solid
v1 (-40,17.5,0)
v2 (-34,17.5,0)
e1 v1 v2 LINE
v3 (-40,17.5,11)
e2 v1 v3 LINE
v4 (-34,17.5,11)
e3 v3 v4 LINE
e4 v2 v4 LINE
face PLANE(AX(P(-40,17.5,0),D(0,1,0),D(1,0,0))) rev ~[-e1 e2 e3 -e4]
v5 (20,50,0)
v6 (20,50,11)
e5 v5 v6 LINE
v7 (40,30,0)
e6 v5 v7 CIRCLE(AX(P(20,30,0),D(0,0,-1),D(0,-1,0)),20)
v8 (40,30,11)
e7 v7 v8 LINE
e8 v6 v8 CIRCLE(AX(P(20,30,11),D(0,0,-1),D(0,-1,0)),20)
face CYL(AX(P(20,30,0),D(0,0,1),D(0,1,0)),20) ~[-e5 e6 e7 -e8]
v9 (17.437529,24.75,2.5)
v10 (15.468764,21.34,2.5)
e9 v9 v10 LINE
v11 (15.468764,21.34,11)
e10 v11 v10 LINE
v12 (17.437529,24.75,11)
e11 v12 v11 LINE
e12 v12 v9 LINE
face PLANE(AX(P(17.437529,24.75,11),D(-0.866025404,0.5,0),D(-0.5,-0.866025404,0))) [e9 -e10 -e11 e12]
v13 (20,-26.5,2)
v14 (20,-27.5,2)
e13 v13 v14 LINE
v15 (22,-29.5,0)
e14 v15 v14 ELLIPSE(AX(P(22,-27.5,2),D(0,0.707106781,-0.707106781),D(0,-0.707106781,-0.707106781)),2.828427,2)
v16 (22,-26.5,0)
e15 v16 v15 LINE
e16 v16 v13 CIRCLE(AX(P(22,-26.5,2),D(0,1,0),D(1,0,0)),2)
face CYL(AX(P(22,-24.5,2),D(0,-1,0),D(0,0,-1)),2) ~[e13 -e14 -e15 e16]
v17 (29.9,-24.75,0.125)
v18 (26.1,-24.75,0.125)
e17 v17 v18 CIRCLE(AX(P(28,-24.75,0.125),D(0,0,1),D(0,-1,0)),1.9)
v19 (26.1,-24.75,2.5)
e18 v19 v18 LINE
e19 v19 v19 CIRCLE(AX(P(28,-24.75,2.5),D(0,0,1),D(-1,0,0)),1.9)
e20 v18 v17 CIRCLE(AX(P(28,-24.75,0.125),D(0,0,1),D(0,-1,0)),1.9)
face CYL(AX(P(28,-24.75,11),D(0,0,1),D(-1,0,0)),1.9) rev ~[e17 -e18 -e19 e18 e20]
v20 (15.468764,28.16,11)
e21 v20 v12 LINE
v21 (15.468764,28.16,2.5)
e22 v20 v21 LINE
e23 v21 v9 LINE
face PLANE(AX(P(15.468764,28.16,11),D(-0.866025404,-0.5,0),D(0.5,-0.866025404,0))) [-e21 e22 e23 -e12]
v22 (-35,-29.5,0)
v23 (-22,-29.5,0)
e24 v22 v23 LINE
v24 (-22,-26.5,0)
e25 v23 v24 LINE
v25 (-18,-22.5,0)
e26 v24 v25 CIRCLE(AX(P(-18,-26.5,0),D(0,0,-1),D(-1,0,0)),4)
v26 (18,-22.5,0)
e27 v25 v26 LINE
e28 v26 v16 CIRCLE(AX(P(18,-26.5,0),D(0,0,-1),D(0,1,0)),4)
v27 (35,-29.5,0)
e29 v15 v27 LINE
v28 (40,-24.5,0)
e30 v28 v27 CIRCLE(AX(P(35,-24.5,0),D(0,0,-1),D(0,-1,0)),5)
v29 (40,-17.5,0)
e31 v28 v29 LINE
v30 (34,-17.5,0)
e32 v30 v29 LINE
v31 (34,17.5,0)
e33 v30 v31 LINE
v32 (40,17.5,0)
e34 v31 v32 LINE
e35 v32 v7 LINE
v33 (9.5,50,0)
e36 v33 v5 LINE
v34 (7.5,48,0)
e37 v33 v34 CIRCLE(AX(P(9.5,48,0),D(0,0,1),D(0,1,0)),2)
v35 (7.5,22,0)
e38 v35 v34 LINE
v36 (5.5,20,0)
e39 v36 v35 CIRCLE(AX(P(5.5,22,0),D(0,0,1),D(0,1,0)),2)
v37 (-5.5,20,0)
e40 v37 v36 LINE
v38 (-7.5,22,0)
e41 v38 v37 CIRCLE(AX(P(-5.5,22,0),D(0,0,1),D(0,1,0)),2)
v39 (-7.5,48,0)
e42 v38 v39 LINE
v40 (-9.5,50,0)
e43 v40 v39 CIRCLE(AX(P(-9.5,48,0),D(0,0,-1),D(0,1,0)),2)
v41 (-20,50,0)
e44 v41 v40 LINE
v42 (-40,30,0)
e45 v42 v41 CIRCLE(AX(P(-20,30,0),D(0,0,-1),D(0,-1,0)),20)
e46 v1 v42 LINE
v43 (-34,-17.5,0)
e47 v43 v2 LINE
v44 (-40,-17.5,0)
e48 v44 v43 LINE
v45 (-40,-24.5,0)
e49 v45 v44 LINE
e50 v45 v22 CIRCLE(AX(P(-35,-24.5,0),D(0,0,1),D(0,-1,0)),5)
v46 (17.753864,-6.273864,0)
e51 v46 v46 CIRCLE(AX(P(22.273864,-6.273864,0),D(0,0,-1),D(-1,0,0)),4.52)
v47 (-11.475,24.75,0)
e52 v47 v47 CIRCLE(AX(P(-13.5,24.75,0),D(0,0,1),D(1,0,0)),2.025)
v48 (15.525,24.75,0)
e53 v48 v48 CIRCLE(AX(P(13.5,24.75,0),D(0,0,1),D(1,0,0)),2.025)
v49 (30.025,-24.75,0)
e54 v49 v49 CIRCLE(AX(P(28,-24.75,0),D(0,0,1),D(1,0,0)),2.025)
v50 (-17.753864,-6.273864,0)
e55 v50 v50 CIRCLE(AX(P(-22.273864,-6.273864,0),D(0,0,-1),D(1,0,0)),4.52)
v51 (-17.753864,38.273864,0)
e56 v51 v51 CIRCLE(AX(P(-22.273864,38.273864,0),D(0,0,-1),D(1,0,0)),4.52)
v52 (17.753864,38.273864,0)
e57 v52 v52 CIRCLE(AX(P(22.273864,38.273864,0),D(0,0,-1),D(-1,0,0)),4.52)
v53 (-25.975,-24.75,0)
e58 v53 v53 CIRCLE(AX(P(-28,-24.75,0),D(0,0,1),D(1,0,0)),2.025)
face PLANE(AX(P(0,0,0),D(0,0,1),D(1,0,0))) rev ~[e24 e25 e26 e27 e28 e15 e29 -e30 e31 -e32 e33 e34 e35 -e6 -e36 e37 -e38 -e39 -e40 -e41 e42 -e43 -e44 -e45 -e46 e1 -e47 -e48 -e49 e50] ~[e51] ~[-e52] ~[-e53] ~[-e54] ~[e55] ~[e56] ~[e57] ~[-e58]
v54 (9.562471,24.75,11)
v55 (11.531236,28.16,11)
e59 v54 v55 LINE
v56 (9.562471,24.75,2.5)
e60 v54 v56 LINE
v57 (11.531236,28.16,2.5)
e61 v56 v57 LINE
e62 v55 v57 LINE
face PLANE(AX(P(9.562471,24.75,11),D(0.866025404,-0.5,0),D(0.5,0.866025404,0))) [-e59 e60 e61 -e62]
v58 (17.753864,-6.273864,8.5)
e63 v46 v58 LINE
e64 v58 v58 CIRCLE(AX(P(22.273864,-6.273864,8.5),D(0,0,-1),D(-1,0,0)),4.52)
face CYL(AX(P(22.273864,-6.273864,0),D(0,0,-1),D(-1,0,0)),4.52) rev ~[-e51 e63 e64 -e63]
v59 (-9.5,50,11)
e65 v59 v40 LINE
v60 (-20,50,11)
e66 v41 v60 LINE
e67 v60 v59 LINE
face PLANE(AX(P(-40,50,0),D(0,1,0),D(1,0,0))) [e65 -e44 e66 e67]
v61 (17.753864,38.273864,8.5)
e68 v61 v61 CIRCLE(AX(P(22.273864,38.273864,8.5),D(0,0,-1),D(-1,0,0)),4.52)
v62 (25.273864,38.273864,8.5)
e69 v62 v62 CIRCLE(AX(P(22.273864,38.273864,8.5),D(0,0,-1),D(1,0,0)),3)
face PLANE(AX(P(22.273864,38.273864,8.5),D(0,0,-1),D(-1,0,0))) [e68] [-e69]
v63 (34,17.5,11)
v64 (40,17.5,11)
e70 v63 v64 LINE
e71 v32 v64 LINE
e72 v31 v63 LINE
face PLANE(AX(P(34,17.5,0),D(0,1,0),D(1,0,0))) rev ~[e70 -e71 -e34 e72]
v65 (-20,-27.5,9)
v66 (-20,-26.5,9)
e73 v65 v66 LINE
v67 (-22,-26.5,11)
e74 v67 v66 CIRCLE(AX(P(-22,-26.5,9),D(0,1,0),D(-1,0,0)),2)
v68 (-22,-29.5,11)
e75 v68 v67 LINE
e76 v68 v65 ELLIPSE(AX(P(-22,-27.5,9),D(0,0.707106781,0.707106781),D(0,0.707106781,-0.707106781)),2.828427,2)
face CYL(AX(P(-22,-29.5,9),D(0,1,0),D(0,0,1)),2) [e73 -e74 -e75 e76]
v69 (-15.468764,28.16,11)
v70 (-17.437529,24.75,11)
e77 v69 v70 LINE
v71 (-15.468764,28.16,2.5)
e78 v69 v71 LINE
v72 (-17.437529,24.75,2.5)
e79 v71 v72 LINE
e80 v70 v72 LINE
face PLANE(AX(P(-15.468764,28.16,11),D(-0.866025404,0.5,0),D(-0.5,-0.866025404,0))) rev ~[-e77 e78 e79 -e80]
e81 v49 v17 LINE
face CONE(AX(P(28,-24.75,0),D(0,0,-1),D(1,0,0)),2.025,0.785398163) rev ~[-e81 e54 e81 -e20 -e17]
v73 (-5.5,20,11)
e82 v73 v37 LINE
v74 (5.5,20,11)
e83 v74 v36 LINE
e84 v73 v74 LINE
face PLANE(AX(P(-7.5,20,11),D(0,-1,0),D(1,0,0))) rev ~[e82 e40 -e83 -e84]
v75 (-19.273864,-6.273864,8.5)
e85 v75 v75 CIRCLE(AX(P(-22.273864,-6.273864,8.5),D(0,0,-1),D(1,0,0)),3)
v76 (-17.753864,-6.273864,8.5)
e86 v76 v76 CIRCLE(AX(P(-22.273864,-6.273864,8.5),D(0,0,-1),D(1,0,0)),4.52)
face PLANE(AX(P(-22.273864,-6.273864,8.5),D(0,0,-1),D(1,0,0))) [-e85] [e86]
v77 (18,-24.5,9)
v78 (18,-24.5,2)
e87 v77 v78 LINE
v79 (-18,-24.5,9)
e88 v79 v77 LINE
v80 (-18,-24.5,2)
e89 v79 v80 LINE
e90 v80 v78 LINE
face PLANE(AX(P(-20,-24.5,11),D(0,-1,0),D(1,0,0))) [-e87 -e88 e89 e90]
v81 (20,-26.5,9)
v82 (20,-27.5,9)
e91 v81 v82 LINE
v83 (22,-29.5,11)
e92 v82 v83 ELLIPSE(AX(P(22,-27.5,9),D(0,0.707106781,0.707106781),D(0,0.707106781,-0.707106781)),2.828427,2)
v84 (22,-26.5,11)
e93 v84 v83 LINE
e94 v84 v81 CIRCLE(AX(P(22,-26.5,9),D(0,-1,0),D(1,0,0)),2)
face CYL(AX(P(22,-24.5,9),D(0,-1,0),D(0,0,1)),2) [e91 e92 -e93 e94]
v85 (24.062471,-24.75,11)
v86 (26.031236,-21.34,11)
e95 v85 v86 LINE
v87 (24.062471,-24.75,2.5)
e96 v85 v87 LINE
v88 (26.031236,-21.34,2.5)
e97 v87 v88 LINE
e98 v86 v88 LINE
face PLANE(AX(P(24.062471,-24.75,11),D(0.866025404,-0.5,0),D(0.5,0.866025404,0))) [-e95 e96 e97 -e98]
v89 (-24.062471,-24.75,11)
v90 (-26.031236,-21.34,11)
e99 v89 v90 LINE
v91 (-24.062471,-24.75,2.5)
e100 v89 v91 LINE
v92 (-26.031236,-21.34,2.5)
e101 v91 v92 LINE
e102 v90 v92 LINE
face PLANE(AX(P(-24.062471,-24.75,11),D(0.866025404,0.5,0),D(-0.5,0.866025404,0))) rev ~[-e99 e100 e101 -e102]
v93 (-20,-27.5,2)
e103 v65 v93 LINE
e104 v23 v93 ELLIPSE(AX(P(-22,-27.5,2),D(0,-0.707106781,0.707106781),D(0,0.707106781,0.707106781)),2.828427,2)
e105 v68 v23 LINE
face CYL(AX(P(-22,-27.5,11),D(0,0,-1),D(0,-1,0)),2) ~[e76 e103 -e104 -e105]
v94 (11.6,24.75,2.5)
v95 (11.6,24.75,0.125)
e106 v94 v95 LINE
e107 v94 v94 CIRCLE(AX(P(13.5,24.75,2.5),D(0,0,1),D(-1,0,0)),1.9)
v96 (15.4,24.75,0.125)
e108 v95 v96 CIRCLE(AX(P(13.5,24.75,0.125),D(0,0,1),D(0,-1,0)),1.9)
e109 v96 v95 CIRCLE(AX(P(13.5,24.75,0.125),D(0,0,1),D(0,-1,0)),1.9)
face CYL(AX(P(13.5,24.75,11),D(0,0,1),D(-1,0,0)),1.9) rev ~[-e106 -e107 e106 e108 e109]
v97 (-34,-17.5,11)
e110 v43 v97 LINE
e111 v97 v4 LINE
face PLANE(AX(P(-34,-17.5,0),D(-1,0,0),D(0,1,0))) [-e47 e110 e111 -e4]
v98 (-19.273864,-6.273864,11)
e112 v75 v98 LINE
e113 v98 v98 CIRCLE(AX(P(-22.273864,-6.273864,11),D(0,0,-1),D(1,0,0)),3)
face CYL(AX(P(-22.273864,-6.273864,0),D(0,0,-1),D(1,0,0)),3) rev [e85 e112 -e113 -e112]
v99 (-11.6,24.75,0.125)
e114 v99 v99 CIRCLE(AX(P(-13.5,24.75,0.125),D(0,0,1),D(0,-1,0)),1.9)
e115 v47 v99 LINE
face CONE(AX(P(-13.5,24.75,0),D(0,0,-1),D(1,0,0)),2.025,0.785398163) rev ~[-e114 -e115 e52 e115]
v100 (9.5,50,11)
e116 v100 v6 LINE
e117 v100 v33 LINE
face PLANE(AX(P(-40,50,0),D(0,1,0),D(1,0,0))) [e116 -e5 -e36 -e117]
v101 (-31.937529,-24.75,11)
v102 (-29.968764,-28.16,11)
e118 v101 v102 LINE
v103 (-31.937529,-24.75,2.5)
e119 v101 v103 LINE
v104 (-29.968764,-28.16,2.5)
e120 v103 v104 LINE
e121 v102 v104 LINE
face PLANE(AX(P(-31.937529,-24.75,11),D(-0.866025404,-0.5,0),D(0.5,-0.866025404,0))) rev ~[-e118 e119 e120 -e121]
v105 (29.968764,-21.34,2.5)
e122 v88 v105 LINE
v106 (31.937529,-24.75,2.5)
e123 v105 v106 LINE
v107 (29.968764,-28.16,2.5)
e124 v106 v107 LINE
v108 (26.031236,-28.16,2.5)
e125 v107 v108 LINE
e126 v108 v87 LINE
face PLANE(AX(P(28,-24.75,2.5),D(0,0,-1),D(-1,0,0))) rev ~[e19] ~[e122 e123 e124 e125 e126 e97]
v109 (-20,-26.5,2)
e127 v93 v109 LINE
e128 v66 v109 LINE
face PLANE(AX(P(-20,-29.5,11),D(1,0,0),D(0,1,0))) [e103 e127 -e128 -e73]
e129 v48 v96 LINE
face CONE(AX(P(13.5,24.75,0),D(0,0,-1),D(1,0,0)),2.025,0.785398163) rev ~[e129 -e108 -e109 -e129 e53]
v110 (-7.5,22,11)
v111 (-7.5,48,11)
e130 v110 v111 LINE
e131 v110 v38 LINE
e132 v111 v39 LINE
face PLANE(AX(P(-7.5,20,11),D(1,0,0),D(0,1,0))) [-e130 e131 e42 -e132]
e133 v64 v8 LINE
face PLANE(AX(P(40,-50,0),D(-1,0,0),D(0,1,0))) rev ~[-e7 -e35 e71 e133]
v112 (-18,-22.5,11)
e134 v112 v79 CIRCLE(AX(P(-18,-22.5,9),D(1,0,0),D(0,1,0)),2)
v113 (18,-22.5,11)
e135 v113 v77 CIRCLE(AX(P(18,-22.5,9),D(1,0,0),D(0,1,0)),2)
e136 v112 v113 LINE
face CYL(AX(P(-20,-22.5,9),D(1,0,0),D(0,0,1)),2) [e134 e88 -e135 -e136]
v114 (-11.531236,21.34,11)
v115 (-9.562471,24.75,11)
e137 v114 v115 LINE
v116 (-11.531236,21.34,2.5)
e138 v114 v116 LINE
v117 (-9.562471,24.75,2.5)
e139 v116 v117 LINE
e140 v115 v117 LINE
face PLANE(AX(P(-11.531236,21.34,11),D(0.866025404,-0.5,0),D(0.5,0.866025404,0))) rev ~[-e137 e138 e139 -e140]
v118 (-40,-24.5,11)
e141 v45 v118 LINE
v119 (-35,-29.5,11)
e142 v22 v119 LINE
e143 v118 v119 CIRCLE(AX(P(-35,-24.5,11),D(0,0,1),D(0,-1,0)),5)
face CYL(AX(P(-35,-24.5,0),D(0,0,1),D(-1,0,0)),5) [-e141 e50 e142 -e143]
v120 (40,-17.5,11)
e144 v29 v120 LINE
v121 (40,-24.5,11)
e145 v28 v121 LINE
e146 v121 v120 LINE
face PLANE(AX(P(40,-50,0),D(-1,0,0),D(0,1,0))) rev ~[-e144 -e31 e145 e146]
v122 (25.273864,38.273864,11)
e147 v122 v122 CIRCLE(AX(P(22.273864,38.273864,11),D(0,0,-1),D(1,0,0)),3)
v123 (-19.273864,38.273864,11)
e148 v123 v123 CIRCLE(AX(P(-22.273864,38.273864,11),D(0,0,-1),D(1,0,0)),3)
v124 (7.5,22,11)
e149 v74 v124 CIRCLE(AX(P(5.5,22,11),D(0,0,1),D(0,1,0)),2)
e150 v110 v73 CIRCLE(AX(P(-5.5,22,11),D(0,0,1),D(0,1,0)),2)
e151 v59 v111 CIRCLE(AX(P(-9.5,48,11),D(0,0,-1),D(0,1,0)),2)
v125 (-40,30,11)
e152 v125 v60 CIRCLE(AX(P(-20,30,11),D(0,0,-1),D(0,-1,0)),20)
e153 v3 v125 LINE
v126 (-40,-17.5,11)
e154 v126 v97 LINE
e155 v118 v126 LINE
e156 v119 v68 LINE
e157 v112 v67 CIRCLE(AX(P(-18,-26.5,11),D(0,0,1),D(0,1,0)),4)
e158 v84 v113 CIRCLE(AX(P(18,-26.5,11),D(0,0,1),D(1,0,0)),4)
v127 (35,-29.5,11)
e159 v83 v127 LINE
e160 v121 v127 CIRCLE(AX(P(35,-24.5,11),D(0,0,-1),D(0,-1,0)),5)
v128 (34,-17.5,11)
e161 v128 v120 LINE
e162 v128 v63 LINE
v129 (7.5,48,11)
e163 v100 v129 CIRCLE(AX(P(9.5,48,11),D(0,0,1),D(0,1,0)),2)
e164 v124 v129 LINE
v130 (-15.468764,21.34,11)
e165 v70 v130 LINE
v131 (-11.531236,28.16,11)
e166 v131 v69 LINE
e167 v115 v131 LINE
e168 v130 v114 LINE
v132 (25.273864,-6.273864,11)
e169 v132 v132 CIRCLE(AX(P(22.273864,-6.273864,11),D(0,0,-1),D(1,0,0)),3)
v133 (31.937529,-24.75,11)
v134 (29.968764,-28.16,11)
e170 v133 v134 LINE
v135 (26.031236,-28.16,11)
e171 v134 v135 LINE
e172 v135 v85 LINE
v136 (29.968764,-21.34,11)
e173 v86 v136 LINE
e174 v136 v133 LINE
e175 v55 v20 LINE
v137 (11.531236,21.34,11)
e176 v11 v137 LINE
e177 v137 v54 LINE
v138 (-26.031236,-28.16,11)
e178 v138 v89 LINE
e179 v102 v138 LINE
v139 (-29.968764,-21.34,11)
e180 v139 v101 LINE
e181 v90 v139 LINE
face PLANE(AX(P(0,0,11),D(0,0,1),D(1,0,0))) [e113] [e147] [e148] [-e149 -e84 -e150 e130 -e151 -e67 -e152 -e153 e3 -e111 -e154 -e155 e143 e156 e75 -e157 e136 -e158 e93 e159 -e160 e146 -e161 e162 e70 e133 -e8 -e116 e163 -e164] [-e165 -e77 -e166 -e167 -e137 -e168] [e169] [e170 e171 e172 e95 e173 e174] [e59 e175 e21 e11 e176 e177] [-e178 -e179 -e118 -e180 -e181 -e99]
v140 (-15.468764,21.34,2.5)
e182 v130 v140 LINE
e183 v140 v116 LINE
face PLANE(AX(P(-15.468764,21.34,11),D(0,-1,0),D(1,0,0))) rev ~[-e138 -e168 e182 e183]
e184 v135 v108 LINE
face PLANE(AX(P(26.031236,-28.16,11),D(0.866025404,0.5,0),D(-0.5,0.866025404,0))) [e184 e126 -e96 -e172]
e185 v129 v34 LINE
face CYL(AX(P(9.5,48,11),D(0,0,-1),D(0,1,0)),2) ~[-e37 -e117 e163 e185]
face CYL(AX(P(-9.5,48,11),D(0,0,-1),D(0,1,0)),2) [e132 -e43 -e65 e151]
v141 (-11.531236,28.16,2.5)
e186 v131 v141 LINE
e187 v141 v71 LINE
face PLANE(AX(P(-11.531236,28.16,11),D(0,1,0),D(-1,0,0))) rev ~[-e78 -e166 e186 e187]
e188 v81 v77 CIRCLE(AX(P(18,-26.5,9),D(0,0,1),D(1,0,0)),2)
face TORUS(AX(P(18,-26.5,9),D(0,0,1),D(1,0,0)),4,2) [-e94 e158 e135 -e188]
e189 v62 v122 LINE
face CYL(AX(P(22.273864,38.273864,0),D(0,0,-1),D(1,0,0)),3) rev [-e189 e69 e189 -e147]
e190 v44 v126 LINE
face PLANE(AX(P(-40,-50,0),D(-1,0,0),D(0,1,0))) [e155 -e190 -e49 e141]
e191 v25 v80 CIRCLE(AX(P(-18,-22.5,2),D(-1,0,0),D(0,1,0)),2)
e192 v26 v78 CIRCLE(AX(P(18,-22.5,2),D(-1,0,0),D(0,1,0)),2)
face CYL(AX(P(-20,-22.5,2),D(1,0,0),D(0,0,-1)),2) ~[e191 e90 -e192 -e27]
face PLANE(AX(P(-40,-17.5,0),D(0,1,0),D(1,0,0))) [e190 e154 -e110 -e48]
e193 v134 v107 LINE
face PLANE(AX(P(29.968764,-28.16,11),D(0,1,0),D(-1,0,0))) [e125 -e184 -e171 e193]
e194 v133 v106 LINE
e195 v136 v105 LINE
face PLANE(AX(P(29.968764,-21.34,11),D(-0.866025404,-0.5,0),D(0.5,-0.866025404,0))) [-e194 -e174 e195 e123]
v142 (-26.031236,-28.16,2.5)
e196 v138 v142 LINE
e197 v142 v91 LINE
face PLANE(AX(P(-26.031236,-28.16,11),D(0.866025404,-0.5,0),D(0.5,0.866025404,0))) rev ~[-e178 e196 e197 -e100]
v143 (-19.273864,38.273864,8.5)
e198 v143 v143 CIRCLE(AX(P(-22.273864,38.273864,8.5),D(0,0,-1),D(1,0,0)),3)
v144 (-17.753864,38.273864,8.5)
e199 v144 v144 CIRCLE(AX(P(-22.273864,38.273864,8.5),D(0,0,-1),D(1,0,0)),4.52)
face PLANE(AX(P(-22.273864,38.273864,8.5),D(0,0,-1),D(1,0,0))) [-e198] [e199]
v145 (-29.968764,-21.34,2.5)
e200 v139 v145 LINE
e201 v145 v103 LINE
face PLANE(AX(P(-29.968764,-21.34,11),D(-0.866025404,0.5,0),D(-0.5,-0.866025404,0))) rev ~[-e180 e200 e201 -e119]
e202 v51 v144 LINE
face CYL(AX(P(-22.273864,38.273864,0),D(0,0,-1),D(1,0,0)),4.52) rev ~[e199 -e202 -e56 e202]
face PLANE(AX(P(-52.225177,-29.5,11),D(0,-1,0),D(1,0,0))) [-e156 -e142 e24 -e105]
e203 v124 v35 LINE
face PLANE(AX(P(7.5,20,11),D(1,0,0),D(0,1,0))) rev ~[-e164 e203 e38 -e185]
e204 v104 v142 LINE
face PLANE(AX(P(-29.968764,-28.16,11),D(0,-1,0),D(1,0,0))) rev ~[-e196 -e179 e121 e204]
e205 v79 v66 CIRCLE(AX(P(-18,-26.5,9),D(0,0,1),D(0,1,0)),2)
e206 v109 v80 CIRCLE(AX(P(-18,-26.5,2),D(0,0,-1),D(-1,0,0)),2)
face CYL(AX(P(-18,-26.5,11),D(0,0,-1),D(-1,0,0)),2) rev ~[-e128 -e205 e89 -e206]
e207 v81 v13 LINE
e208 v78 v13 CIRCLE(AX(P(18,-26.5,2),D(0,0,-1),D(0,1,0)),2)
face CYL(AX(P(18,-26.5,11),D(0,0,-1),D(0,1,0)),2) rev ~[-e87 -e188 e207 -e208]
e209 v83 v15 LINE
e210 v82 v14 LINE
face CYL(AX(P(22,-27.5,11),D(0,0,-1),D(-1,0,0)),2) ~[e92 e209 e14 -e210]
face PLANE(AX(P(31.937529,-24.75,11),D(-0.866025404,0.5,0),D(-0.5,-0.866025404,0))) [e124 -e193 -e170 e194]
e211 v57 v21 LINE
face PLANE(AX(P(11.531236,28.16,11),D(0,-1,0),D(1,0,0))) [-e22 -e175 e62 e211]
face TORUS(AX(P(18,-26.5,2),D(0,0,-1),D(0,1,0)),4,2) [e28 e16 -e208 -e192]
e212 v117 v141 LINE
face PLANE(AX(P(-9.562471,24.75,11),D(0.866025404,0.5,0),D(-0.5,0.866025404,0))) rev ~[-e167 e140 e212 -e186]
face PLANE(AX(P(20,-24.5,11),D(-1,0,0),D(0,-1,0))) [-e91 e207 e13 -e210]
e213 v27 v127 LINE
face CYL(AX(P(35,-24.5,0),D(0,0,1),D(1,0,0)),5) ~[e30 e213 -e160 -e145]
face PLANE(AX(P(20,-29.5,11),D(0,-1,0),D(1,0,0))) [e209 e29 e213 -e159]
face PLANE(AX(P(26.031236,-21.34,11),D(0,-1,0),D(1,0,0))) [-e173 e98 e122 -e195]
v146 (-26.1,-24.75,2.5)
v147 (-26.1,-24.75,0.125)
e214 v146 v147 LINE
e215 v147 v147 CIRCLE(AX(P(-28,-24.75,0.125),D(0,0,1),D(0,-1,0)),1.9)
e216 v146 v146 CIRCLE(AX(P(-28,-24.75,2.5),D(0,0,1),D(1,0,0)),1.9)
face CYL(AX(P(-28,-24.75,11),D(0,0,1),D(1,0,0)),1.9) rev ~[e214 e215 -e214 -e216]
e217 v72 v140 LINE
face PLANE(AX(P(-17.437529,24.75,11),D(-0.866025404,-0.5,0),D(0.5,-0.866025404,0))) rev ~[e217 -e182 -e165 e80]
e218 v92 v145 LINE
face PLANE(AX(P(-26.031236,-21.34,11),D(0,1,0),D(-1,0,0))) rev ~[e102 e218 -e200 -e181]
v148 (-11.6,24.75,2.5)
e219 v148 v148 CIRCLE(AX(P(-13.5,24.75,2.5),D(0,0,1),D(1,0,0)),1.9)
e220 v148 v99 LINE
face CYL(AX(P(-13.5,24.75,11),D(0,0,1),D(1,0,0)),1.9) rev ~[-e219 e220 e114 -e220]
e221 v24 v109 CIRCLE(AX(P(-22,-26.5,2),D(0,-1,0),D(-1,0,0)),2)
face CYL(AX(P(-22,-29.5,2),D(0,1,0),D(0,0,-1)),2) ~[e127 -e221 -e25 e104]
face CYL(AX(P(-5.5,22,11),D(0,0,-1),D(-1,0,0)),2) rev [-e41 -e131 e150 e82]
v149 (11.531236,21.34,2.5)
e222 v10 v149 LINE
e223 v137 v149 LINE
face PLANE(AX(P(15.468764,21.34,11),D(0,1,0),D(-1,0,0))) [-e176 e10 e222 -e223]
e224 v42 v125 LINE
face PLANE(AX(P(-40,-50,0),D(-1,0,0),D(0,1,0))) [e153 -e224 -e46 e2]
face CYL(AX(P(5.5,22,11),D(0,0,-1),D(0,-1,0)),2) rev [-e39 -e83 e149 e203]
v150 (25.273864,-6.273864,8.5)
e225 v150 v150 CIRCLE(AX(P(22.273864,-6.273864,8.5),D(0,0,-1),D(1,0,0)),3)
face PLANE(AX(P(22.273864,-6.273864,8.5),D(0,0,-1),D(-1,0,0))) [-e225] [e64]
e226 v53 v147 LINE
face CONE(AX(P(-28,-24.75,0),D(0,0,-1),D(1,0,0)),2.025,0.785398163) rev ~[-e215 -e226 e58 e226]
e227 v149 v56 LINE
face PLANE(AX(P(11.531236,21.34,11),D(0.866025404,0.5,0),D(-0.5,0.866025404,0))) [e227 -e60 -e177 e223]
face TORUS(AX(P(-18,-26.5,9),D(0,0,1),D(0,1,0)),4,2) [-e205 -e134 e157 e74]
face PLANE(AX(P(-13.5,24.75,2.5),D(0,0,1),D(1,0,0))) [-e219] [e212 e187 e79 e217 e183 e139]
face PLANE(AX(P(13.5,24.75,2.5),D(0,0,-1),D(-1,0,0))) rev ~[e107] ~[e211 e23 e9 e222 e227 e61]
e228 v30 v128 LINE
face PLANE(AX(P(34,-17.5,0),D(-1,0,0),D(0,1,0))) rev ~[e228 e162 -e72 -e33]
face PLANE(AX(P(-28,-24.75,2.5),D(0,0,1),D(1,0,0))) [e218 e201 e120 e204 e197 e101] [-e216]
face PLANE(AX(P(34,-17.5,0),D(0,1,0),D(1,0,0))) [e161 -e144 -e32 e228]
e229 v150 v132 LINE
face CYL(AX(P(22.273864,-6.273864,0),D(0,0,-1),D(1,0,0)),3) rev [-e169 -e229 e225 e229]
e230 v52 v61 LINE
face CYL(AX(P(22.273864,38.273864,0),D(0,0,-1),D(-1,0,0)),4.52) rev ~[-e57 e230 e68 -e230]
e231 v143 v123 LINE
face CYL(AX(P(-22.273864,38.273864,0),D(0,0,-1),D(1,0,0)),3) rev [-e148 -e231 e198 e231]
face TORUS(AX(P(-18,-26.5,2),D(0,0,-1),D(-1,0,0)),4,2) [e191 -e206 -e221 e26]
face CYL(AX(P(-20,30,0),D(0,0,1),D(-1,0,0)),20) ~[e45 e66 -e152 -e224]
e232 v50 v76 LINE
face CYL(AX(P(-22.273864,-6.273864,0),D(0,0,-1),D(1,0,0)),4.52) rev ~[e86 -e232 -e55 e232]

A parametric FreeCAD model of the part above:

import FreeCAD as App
import Part
import Sketcher

V = App.Vector
Q = App.Units.Quantity


def edges_at(feature, points):
    """Names of the edges that pass closest to the given points."""
    edges = feature.Shape.Edges
    near = lambda p: min(range(len(edges)), key=lambda i: edges[i].distToShape(Part.Vertex(*p))[0])
    return sorted({f"Edge{near(p) + 1}" for p in points})

doc = App.newDocument("Part")
params = doc.addObject("Spreadsheet::Sheet", "Params")
for row, (alias, value) in enumerate([
    ("sketch1_width", "80 mm"),
    ("sketch1_height", "100 mm"),
    ("pad1_length", "11 mm"),
    ("sketch2_width", "15 mm"),
    ("sketch2_height", "30 mm"),
    ("pocket1_length", "16 mm"),
    ("sketch3_diameter", "3.3 mm"),
    ("hole_diameter", "3.3 mm"),
    ("hole_csink_diameter", "4.05 mm"),
    ("fillet_radius", "20 mm"),
    ("fillet2_radius", "2 mm"),
    ("sketch4_width", "6 mm"),
    ("sketch4_height", "35 mm"),
    ("pocket2_length", "11 mm"),
    ("sketch5_diameter", "6 mm"),
    ("pocket3_length", "15 mm"),
    ("sketch6_diameter", "3.8 mm"),
    ("pocket4_length", "14 mm"),
    ("sketch7_diameter", "9.04 mm"),
    ("pocket5_length", "8.5 mm"),
    ("pocket6_length", "8.5 mm"),
    ("sketch9_width", "40 mm"),
    ("sketch9_height", "5 mm"),
    ("pocket7_length", "13.5 mm"),
    ("fillet3_radius", "5 mm"),
    ("fillet4_radius", "2 mm"),
], start=1):
    params.set(f"A{row}", alias)
    params.set(f"B{row}", "=" + value)
    params.setAlias(f"B{row}", alias)

body = doc.addObject("PartDesign::Body", "Body")

# Sketch on XY plane
sketch1 = doc.addObject("Sketcher::SketchObject", "Sketch")
body.addObject(sketch1)
sketch1.AttachmentSupport = (doc.XY_Plane, [""])
sketch1.MapMode = "FlatFace"
sketch1.addGeometry(Part.LineSegment(V(-40, 50, 0), V(-40, -50, 0)), False)
sketch1.addGeometry(Part.LineSegment(V(-40, -50, 0), V(40, -50, 0)), False)
sketch1.addGeometry(Part.LineSegment(V(40, -50, 0), V(40, 50, 0)), False)
sketch1.addGeometry(Part.LineSegment(V(40, 50, 0), V(-40, 50, 0)), False)
sketch1.addConstraint(Sketcher.Constraint("Coincident", 0, 2, 1, 1))
sketch1.addConstraint(Sketcher.Constraint("Coincident", 1, 2, 2, 1))
sketch1.addConstraint(Sketcher.Constraint("Coincident", 2, 2, 3, 1))
sketch1.addConstraint(Sketcher.Constraint("Coincident", 3, 2, 0, 1))
sketch1.addConstraint(Sketcher.Constraint("Vertical", 0))
sketch1.addConstraint(Sketcher.Constraint("Horizontal", 1))
sketch1.addConstraint(Sketcher.Constraint("Vertical", 2))
sketch1.addConstraint(Sketcher.Constraint("Horizontal", 3))
sketch1.addConstraint(Sketcher.Constraint("Symmetric", 0, 2, 2, 2, -1, 1))
sketch1.addConstraint(Sketcher.Constraint("DistanceX", 1, 1, 1, 2, 80.0))
sketch1.addConstraint(Sketcher.Constraint("DistanceY", 0, 2, 0, 1, 100.0))
sketch1.setExpression("Constraints[9]", "Params.sketch1_width")
sketch1.setExpression("Constraints[10]", "Params.sketch1_height")
pad1 = doc.addObject("PartDesign::Pad", "Pad")
body.addObject(pad1)
pad1.Profile = sketch1
pad1.setExpression("Length", "Params.pad1_length")

# Sketch on XY plane
sketch2 = doc.addObject("Sketcher::SketchObject", "Sketch001")
body.addObject(sketch2)
sketch2.AttachmentSupport = (doc.XY_Plane, [""])
sketch2.MapMode = "FlatFace"
sketch2.AttachmentOffset = App.Placement(V(0, 0, 11), App.Rotation())
sketch2.addGeometry(Part.LineSegment(V(-7.5, 50, 0), V(-7.5, 20, 0)), False)
sketch2.addGeometry(Part.LineSegment(V(-7.5, 20, 0), V(7.5, 20, 0)), False)
sketch2.addGeometry(Part.LineSegment(V(7.5, 20, 0), V(7.5, 50, 0)), False)
sketch2.addGeometry(Part.LineSegment(V(7.5, 50, 0), V(-7.5, 50, 0)), False)
sketch2.addConstraint(Sketcher.Constraint("Coincident", 0, 2, 1, 1))
sketch2.addConstraint(Sketcher.Constraint("Coincident", 1, 2, 2, 1))
sketch2.addConstraint(Sketcher.Constraint("Coincident", 2, 2, 3, 1))
sketch2.addConstraint(Sketcher.Constraint("Coincident", 3, 2, 0, 1))
sketch2.addConstraint(Sketcher.Constraint("Vertical", 0))
sketch2.addConstraint(Sketcher.Constraint("Horizontal", 1))
sketch2.addConstraint(Sketcher.Constraint("Vertical", 2))
sketch2.addConstraint(Sketcher.Constraint("Horizontal", 3))
sketch2.addConstraint(Sketcher.Constraint("DistanceX", 1, 1, 1, 2, 15.0))
sketch2.addConstraint(Sketcher.Constraint("DistanceY", 0, 2, 0, 1, 30.0))
sketch2.addConstraint(Sketcher.Constraint("DistanceY", -1, 1, 0, 2, 20.0))
sketch2.addConstraint(Sketcher.Constraint("DistanceX", 0, 2, -1, 1, 7.5))
sketch2.setExpression("Constraints[8]", "Params.sketch2_width")
sketch2.setExpression("Constraints[9]", "Params.sketch2_height")
pocket1 = doc.addObject("PartDesign::Pocket", "Pocket")
body.addObject(pocket1)
pocket1.Profile = sketch2
pocket1.setExpression("Length", "Params.pocket1_length")

# Sketch on XY plane
sketch3 = doc.addObject("Sketcher::SketchObject", "Sketch002")
body.addObject(sketch3)
sketch3.AttachmentSupport = (doc.XY_Plane, [""])
sketch3.MapMode = "FlatFace"
sketch3.addGeometry(Part.Circle(V(13.5, 24.75, 0), V(0, 0, 1), 1.65), False)
sketch3.addGeometry(Part.Circle(V(-13.5, 24.75, 0), V(0, 0, 1), 1.65), False)
sketch3.addGeometry(Part.Circle(V(-28, -24.75, 0), V(0, 0, 1), 1.65), False)
sketch3.addGeometry(Part.Circle(V(28, -24.75, 0), V(0, 0, 1), 1.65), False)
sketch3.addConstraint(Sketcher.Constraint("Equal", 0, 1))
sketch3.addConstraint(Sketcher.Constraint("Equal", 1, 2))
sketch3.addConstraint(Sketcher.Constraint("Equal", 2, 3))
sketch3.addConstraint(Sketcher.Constraint("Symmetric", 0, 3, 1, 3, -2))
sketch3.addConstraint(Sketcher.Constraint("Symmetric", 2, 3, 3, 3, -2))
sketch3.addConstraint(Sketcher.Constraint("Diameter", 0, 3.3))
sketch3.addConstraint(Sketcher.Constraint("DistanceX", 2, 3, -1, 1, 28.0))
sketch3.addConstraint(Sketcher.Constraint("DistanceX", 1, 3, 0, 3, 27.0))
sketch3.addConstraint(Sketcher.Constraint("DistanceY", 2, 3, 1, 3, 49.5))
sketch3.addConstraint(Sketcher.Constraint("DistanceY", -1, 1, 0, 3, 24.75))
sketch3.setExpression("Constraints[5]", "Params.sketch3_diameter")
doc.recompute()
hole = doc.addObject("PartDesign::Hole", "Hole")
body.addObject(hole)
hole.Profile = sketch3
hole.ThreadType = "None"
hole.setExpression("Diameter", "Params.hole_diameter")
hole.DepthType = "ThroughAll"
hole.HoleCutType = "Countersink"
hole.setExpression("HoleCutDiameter", "Params.hole_csink_diameter")
hole.HoleCutCountersinkAngle = 90
hole.Reversed = True
doc.recompute()

fillet = doc.addObject("PartDesign::Fillet", "Fillet")
body.addObject(fillet)
fillet.Base = (hole, edges_at(hole, [(-40, 50, 5.5), (40, 50, 5.5)]))
fillet.setExpression("Radius", "Params.fillet_radius")
doc.recompute()

fillet2 = doc.addObject("PartDesign::Fillet", "Fillet001")
body.addObject(fillet2)
fillet2.Base = (fillet, edges_at(fillet, [
    (-7.5, 20, 5.5),
    (-7.5, 50, 5.5),
    (7.5, 50, 5.5),
    (7.5, 20, 5.5),
    (40, -50, 5.5),
    (-40, -50, 5.5),
]))
fillet2.setExpression("Radius", "Params.fillet2_radius")

# Sketch on XY plane
sketch4 = doc.addObject("Sketcher::SketchObject", "Sketch003")
body.addObject(sketch4)
sketch4.AttachmentSupport = (doc.XY_Plane, [""])
sketch4.MapMode = "FlatFace"
sketch4.addGeometry(Part.LineSegment(V(34, 17.5, 0), V(34, -17.5, 0)), False)
sketch4.addGeometry(Part.LineSegment(V(34, -17.5, 0), V(40, -17.5, 0)), False)
sketch4.addGeometry(Part.LineSegment(V(40, -17.5, 0), V(40, 17.5, 0)), False)
sketch4.addGeometry(Part.LineSegment(V(40, 17.5, 0), V(34, 17.5, 0)), False)
sketch4.addGeometry(Part.LineSegment(V(-40, 17.5, 0), V(-40, -17.5, 0)), False)
sketch4.addGeometry(Part.LineSegment(V(-40, -17.5, 0), V(-34, -17.5, 0)), False)
sketch4.addGeometry(Part.LineSegment(V(-34, -17.5, 0), V(-34, 17.5, 0)), False)
sketch4.addGeometry(Part.LineSegment(V(-34, 17.5, 0), V(-40, 17.5, 0)), False)
sketch4.addConstraint(Sketcher.Constraint("Coincident", 0, 2, 1, 1))
sketch4.addConstraint(Sketcher.Constraint("Coincident", 1, 2, 2, 1))
sketch4.addConstraint(Sketcher.Constraint("Coincident", 2, 2, 3, 1))
sketch4.addConstraint(Sketcher.Constraint("Coincident", 3, 2, 0, 1))
sketch4.addConstraint(Sketcher.Constraint("Coincident", 4, 2, 5, 1))
sketch4.addConstraint(Sketcher.Constraint("Coincident", 5, 2, 6, 1))
sketch4.addConstraint(Sketcher.Constraint("Coincident", 6, 2, 7, 1))
sketch4.addConstraint(Sketcher.Constraint("Coincident", 7, 2, 4, 1))
sketch4.addConstraint(Sketcher.Constraint("Vertical", 0))
sketch4.addConstraint(Sketcher.Constraint("Horizontal", 1))
sketch4.addConstraint(Sketcher.Constraint("Vertical", 2))
sketch4.addConstraint(Sketcher.Constraint("Horizontal", 3))
sketch4.addConstraint(Sketcher.Constraint("Vertical", 4))
sketch4.addConstraint(Sketcher.Constraint("Horizontal", 5))
sketch4.addConstraint(Sketcher.Constraint("Vertical", 6))
sketch4.addConstraint(Sketcher.Constraint("Horizontal", 7))
sketch4.addConstraint(Sketcher.Constraint("Symmetric", 2, 2, 4, 2, -1, 1))
sketch4.addConstraint(Sketcher.Constraint("Symmetric", 0, 2, 6, 2, -1, 1))
sketch4.addConstraint(Sketcher.Constraint("Horizontal", 1, 2, 4, 2))
sketch4.addConstraint(Sketcher.Constraint("DistanceX", 1, 1, 1, 2, 6.0))
sketch4.addConstraint(Sketcher.Constraint("DistanceY", 0, 2, 0, 1, 35.0))
sketch4.addConstraint(Sketcher.Constraint("DistanceX", -1, 1, 0, 2, 34.0))
sketch4.setExpression("Constraints[19]", "Params.sketch4_width")
sketch4.setExpression("Constraints[20]", "Params.sketch4_height")
pocket2 = doc.addObject("PartDesign::Pocket", "Pocket001")
body.addObject(pocket2)
pocket2.Profile = sketch4
pocket2.setExpression("Length", "Params.pocket2_length")
pocket2.Reversed = True

# Sketch on XY plane
sketch5 = doc.addObject("Sketcher::SketchObject", "Sketch004")
body.addObject(sketch5)
sketch5.AttachmentSupport = (doc.XY_Plane, [""])
sketch5.MapMode = "FlatFace"
sketch5.addGeometry(Part.Circle(V(-22.273864, 38.273864, 0), V(0, 0, 1), 3), False)
sketch5.addGeometry(Part.Circle(V(22.273864, 38.273864, 0), V(0, 0, 1), 3), False)
sketch5.addGeometry(Part.Circle(V(22.273864, -6.273864, 0), V(0, 0, 1), 3), False)
sketch5.addGeometry(Part.Circle(V(-22.273864, -6.273864, 0), V(0, 0, 1), 3), False)
sketch5.addConstraint(Sketcher.Constraint("Equal", 0, 1))
sketch5.addConstraint(Sketcher.Constraint("Equal", 1, 2))
sketch5.addConstraint(Sketcher.Constraint("Equal", 2, 3))
sketch5.addConstraint(Sketcher.Constraint("Symmetric", 0, 3, 1, 3, -2))
sketch5.addConstraint(Sketcher.Constraint("Symmetric", 2, 3, 3, 3, -2))
sketch5.addConstraint(Sketcher.Constraint("Vertical", 1, 3, 2, 3))
sketch5.addConstraint(Sketcher.Constraint("Diameter", 0, 6.0))
sketch5.addConstraint(Sketcher.Constraint("DistanceX", 0, 3, -1, 1, 22.273864))
sketch5.addConstraint(Sketcher.Constraint("DistanceY", -1, 1, 0, 3, 38.273864))
sketch5.addConstraint(Sketcher.Constraint("DistanceY", 2, 3, -1, 1, 6.273864))
sketch5.setExpression("Constraints[6]", "Params.sketch5_diameter")
pocket3 = doc.addObject("PartDesign::Pocket", "Pocket002")
body.addObject(pocket3)
pocket3.Profile = sketch5
pocket3.setExpression("Length", "Params.pocket3_length")
pocket3.Reversed = True

# Sketch on XY plane
sketch6 = doc.addObject("Sketcher::SketchObject", "Sketch005")
body.addObject(sketch6)
sketch6.AttachmentSupport = (doc.XY_Plane, [""])
sketch6.MapMode = "FlatFace"
sketch6.AttachmentOffset = App.Placement(V(0, 0, 11), App.Rotation())
sketch6.addGeometry(Part.Circle(V(-13.5, 24.75, 0), V(0, 0, 1), 1.9), False)
sketch6.addGeometry(Part.Circle(V(-28, -24.75, 0), V(0, 0, 1), 1.9), False)
sketch6.addGeometry(Part.Circle(V(13.5, 24.75, 0), V(0, 0, 1), 1.9), False)
sketch6.addGeometry(Part.Circle(V(28, -24.75, 0), V(0, 0, 1), 1.9), False)
sketch6.addConstraint(Sketcher.Constraint("Equal", 0, 1))
sketch6.addConstraint(Sketcher.Constraint("Equal", 1, 2))
sketch6.addConstraint(Sketcher.Constraint("Equal", 2, 3))
sketch6.addConstraint(Sketcher.Constraint("Symmetric", 0, 3, 2, 3, -2))
sketch6.addConstraint(Sketcher.Constraint("Symmetric", 1, 3, 3, 3, -2))
sketch6.addConstraint(Sketcher.Constraint("Diameter", 0, 3.8))
sketch6.addConstraint(Sketcher.Constraint("DistanceX", 1, 3, -1, 1, 28.0))
sketch6.addConstraint(Sketcher.Constraint("DistanceX", 0, 3, 2, 3, 27.0))
sketch6.addConstraint(Sketcher.Constraint("DistanceY", 1, 3, 0, 3, 49.5))
sketch6.addConstraint(Sketcher.Constraint("DistanceY", -1, 1, 0, 3, 24.75))
sketch6.setExpression("Constraints[5]", "Params.sketch6_diameter")
pocket4 = doc.addObject("PartDesign::Pocket", "Pocket003")
body.addObject(pocket4)
pocket4.Profile = sketch6
pocket4.setExpression("Length", "Params.pocket4_length")

# Sketch on XY plane
sketch7 = doc.addObject("Sketcher::SketchObject", "Sketch006")
body.addObject(sketch7)
sketch7.AttachmentSupport = (doc.XY_Plane, [""])
sketch7.MapMode = "FlatFace"
sketch7.addGeometry(Part.Circle(V(22.273864, 38.273864, 0), V(0, 0, 1), 4.52), False)
sketch7.addGeometry(Part.Circle(V(22.273864, -6.273864, 0), V(0, 0, 1), 4.52), False)
sketch7.addGeometry(Part.Circle(V(-22.273864, -6.273864, 0), V(0, 0, 1), 4.52), False)
sketch7.addGeometry(Part.Circle(V(-22.273864, 38.273864, 0), V(0, 0, 1), 4.52), False)
sketch7.addConstraint(Sketcher.Constraint("Equal", 0, 1))
sketch7.addConstraint(Sketcher.Constraint("Equal", 1, 2))
sketch7.addConstraint(Sketcher.Constraint("Equal", 2, 3))
sketch7.addConstraint(Sketcher.Constraint("Symmetric", 1, 3, 2, 3, -2))
sketch7.addConstraint(Sketcher.Constraint("Symmetric", 0, 3, 3, 3, -2))
sketch7.addConstraint(Sketcher.Constraint("Vertical", 0, 3, 1, 3))
sketch7.addConstraint(Sketcher.Constraint("Diameter", 0, 9.04))
sketch7.addConstraint(Sketcher.Constraint("DistanceX", -1, 1, 0, 3, 22.273864))
sketch7.addConstraint(Sketcher.Constraint("DistanceY", -1, 1, 0, 3, 38.273864))
sketch7.addConstraint(Sketcher.Constraint("DistanceY", 1, 3, -1, 1, 6.273864))
sketch7.setExpression("Constraints[6]", "Params.sketch7_diameter")
pocket5 = doc.addObject("PartDesign::Pocket", "Pocket004")
body.addObject(pocket5)
pocket5.Profile = sketch7
pocket5.setExpression("Length", "Params.pocket5_length")
pocket5.Reversed = True

# Sketch on XY plane
sketch8 = doc.addObject("Sketcher::SketchObject", "Sketch007")
body.addObject(sketch8)
sketch8.AttachmentSupport = (doc.XY_Plane, [""])
sketch8.MapMode = "FlatFace"
sketch8.AttachmentOffset = App.Placement(V(0, 0, 11), App.Rotation())
sketch8.addGeometry(Part.LineSegment(V(-15.468764, 21.34, 0), V(-11.531236, 21.34, 0)), False)
sketch8.addGeometry(Part.LineSegment(V(-11.531236, 21.34, 0), V(-9.562471, 24.75, 0)), False)
sketch8.addGeometry(Part.LineSegment(V(-9.562471, 24.75, 0), V(-11.531236, 28.16, 0)), False)
sketch8.addGeometry(Part.LineSegment(V(-11.531236, 28.16, 0), V(-15.468764, 28.16, 0)), False)
sketch8.addGeometry(Part.LineSegment(V(-15.468764, 28.16, 0), V(-17.437529, 24.75, 0)), False)
sketch8.addGeometry(Part.LineSegment(V(-17.437529, 24.75, 0), V(-15.468764, 21.34, 0)), False)
sketch8.addGeometry(Part.LineSegment(V(-26.031236, -28.16, 0), V(-24.062471, -24.75, 0)), False)
sketch8.addGeometry(Part.LineSegment(V(-24.062471, -24.75, 0), V(-26.031236, -21.34, 0)), False)
sketch8.addGeometry(Part.LineSegment(V(-26.031236, -21.34, 0), V(-29.968764, -21.34, 0)), False)
sketch8.addGeometry(Part.LineSegment(V(-29.968764, -21.34, 0), V(-31.937529, -24.75, 0)), False)
sketch8.addGeometry(Part.LineSegment(V(-31.937529, -24.75, 0), V(-29.968764, -28.16, 0)), False)
sketch8.addGeometry(Part.LineSegment(V(-29.968764, -28.16, 0), V(-26.031236, -28.16, 0)), False)
sketch8.addGeometry(Part.LineSegment(V(26.031236, -28.16, 0), V(29.968764, -28.16, 0)), False)
sketch8.addGeometry(Part.LineSegment(V(29.968764, -28.16, 0), V(31.937529, -24.75, 0)), False)
sketch8.addGeometry(Part.LineSegment(V(31.937529, -24.75, 0), V(29.968764, -21.34, 0)), False)
sketch8.addGeometry(Part.LineSegment(V(29.968764, -21.34, 0), V(26.031236, -21.34, 0)), False)
sketch8.addGeometry(Part.LineSegment(V(26.031236, -21.34, 0), V(24.062471, -24.75, 0)), False)
sketch8.addGeometry(Part.LineSegment(V(24.062471, -24.75, 0), V(26.031236, -28.16, 0)), False)
sketch8.addGeometry(Part.LineSegment(V(15.468764, 21.34, 0), V(17.437529, 24.75, 0)), False)
sketch8.addGeometry(Part.LineSegment(V(17.437529, 24.75, 0), V(15.468764, 28.16, 0)), False)
sketch8.addGeometry(Part.LineSegment(V(15.468764, 28.16, 0), V(11.531236, 28.16, 0)), False)
sketch8.addGeometry(Part.LineSegment(V(11.531236, 28.16, 0), V(9.562471, 24.75, 0)), False)
sketch8.addGeometry(Part.LineSegment(V(9.562471, 24.75, 0), V(11.531236, 21.34, 0)), False)
sketch8.addGeometry(Part.LineSegment(V(11.531236, 21.34, 0), V(15.468764, 21.34, 0)), False)
sketch8.addConstraint(Sketcher.Constraint("Coincident", 0, 2, 1, 1))
sketch8.addConstraint(Sketcher.Constraint("Coincident", 1, 2, 2, 1))
sketch8.addConstraint(Sketcher.Constraint("Coincident", 2, 2, 3, 1))
sketch8.addConstraint(Sketcher.Constraint("Coincident", 3, 2, 4, 1))
sketch8.addConstraint(Sketcher.Constraint("Coincident", 4, 2, 5, 1))
sketch8.addConstraint(Sketcher.Constraint("Coincident", 5, 2, 0, 1))
sketch8.addConstraint(Sketcher.Constraint("Coincident", 6, 2, 7, 1))
sketch8.addConstraint(Sketcher.Constraint("Coincident", 7, 2, 8, 1))
sketch8.addConstraint(Sketcher.Constraint("Coincident", 8, 2, 9, 1))
sketch8.addConstraint(Sketcher.Constraint("Coincident", 9, 2, 10, 1))
sketch8.addConstraint(Sketcher.Constraint("Coincident", 10, 2, 11, 1))
sketch8.addConstraint(Sketcher.Constraint("Coincident", 11, 2, 6, 1))
sketch8.addConstraint(Sketcher.Constraint("Coincident", 12, 2, 13, 1))
sketch8.addConstraint(Sketcher.Constraint("Coincident", 13, 2, 14, 1))
sketch8.addConstraint(Sketcher.Constraint("Coincident", 14, 2, 15, 1))
sketch8.addConstraint(Sketcher.Constraint("Coincident", 15, 2, 16, 1))
sketch8.addConstraint(Sketcher.Constraint("Coincident", 16, 2, 17, 1))
sketch8.addConstraint(Sketcher.Constraint("Coincident", 17, 2, 12, 1))
sketch8.addConstraint(Sketcher.Constraint("Coincident", 18, 2, 19, 1))
sketch8.addConstraint(Sketcher.Constraint("Coincident", 19, 2, 20, 1))
sketch8.addConstraint(Sketcher.Constraint("Coincident", 20, 2, 21, 1))
sketch8.addConstraint(Sketcher.Constraint("Coincident", 21, 2, 22, 1))
sketch8.addConstraint(Sketcher.Constraint("Coincident", 22, 2, 23, 1))
sketch8.addConstraint(Sketcher.Constraint("Coincident", 23, 2, 18, 1))
sketch8.addConstraint(Sketcher.Constraint("Horizontal", 0))
sketch8.addConstraint(Sketcher.Constraint("Horizontal", 3))
sketch8.addConstraint(Sketcher.Constraint("Horizontal", 8))
sketch8.addConstraint(Sketcher.Constraint("Horizontal", 11))
sketch8.addConstraint(Sketcher.Constraint("Horizontal", 12))
sketch8.addConstraint(Sketcher.Constraint("Horizontal", 15))
sketch8.addConstraint(Sketcher.Constraint("Horizontal", 20))
sketch8.addConstraint(Sketcher.Constraint("Horizontal", 23))
sketch8.addConstraint(Sketcher.Constraint("Symmetric", 10, 2, 12, 2, -2))
sketch8.addConstraint(Sketcher.Constraint("Symmetric", 9, 2, 13, 2, -2))
sketch8.addConstraint(Sketcher.Constraint("Symmetric", 8, 2, 14, 2, -2))
sketch8.addConstraint(Sketcher.Constraint("Symmetric", 6, 2, 16, 2, -2))
sketch8.addConstraint(Sketcher.Constraint("Symmetric", 4, 2, 18, 2, -2))
sketch8.addConstraint(Sketcher.Constraint("Symmetric", 3, 2, 19, 2, -2))
sketch8.addConstraint(Sketcher.Constraint("Symmetric", 1, 2, 21, 2, -2))
sketch8.addConstraint(Sketcher.Constraint("Symmetric", 0, 2, 22, 2, -2))
sketch8.addConstraint(Sketcher.Constraint("Parallel", 1, 4))
sketch8.addConstraint(Sketcher.Constraint("Parallel", 2, 5))
sketch8.addConstraint(Sketcher.Constraint("Parallel", 4, 6))
sketch8.addConstraint(Sketcher.Constraint("Parallel", 5, 7))
sketch8.addConstraint(Sketcher.Constraint("Parallel", 6, 9))
sketch8.addConstraint(Sketcher.Constraint("Parallel", 7, 10))
sketch8.addConstraint(Sketcher.Constraint("Parallel", 9, 13))
sketch8.addConstraint(Sketcher.Constraint("Parallel", 13, 16))
sketch8.addConstraint(Sketcher.Constraint("Parallel", 14, 17))
sketch8.addConstraint(Sketcher.Constraint("Parallel", 16, 18))
sketch8.addConstraint(Sketcher.Constraint("Parallel", 18, 21))
sketch8.addConstraint(Sketcher.Constraint("Horizontal", 1, 2, 4, 2))
sketch8.addConstraint(Sketcher.Constraint("Horizontal", 6, 2, 9, 2))
sketch8.addConstraint(Sketcher.Constraint("Vertical", 0, 2, 2, 2))
sketch8.addConstraint(Sketcher.Constraint("Vertical", 8, 2, 10, 2))
sketch8.addConstraint(Sketcher.Constraint("Equal", 3, 8))
sketch8.addConstraint(Sketcher.Constraint("Equal", 5, 6))
sketch8.addConstraint(Sketcher.Constraint("Angle", 1, Q("60 deg")))
sketch8.addConstraint(Sketcher.Constraint("DistanceX", 11, 2, 12, 2, 56.0))
sketch8.addConstraint(Sketcher.Constraint("DistanceX", 1, 2, 18, 2, 27.0))
sketch8.addConstraint(Sketcher.Constraint("DistanceY", 6, 2, 4, 2, 49.5))
sketch8.addConstraint(Sketcher.Constraint("DistanceY", -1, 1, 0, 2, 21.34))
sketch8.addConstraint(Sketcher.Constraint("DistanceY", -1, 1, 1, 2, 24.75))
sketch8.addConstraint(Sketcher.Constraint("DistanceX", 0, 1, 0, 2, 3.937529))
pocket6 = doc.addObject("PartDesign::Pocket", "Pocket005")
body.addObject(pocket6)
pocket6.Profile = sketch8
pocket6.setExpression("Length", "Params.pocket6_length")

# Sketch on XY plane
sketch9 = doc.addObject("Sketcher::SketchObject", "Sketch008")
body.addObject(sketch9)
sketch9.AttachmentSupport = (doc.XY_Plane, [""])
sketch9.MapMode = "FlatFace"
sketch9.AttachmentOffset = App.Placement(V(0, 0, 11), App.Rotation())
sketch9.addGeometry(Part.LineSegment(V(-20, -29.5, 0), V(-52.225177, -29.5, 0)), False)
sketch9.addGeometry(Part.LineSegment(V(-52.225177, -29.5, 0), V(-52.225177, -55.08261, 0)), False)
sketch9.addGeometry(Part.LineSegment(V(-52.225177, -55.08261, 0), V(49.136604, -55.08261, 0)), False)
sketch9.addGeometry(Part.LineSegment(V(49.136604, -55.08261, 0), V(49.136604, -29.5, 0)), False)
sketch9.addGeometry(Part.LineSegment(V(49.136604, -29.5, 0), V(20, -29.5, 0)), False)
sketch9.addGeometry(Part.LineSegment(V(20, -29.5, 0), V(20, -24.5, 0)), False)
sketch9.addGeometry(Part.LineSegment(V(20, -24.5, 0), V(-20, -24.5, 0)), False)
sketch9.addGeometry(Part.LineSegment(V(-20, -24.5, 0), V(-20, -29.5, 0)), False)
sketch9.addConstraint(Sketcher.Constraint("Coincident", 0, 2, 1, 1))
sketch9.addConstraint(Sketcher.Constraint("Coincident", 1, 2, 2, 1))
sketch9.addConstraint(Sketcher.Constraint("Coincident", 2, 2, 3, 1))
sketch9.addConstraint(Sketcher.Constraint("Coincident", 3, 2, 4, 1))
sketch9.addConstraint(Sketcher.Constraint("Coincident", 4, 2, 5, 1))
sketch9.addConstraint(Sketcher.Constraint("Coincident", 5, 2, 6, 1))
sketch9.addConstraint(Sketcher.Constraint("Coincident", 6, 2, 7, 1))
sketch9.addConstraint(Sketcher.Constraint("Coincident", 7, 2, 0, 1))
sketch9.addConstraint(Sketcher.Constraint("Horizontal", 0))
sketch9.addConstraint(Sketcher.Constraint("Vertical", 1))
sketch9.addConstraint(Sketcher.Constraint("Horizontal", 2))
sketch9.addConstraint(Sketcher.Constraint("Vertical", 3))
sketch9.addConstraint(Sketcher.Constraint("Horizontal", 4))
sketch9.addConstraint(Sketcher.Constraint("Vertical", 5))
sketch9.addConstraint(Sketcher.Constraint("Horizontal", 6))
sketch9.addConstraint(Sketcher.Constraint("Vertical", 7))
sketch9.addConstraint(Sketcher.Constraint("Symmetric", 4, 2, 7, 2, -2))
sketch9.addConstraint(Sketcher.Constraint("DistanceX", 6, 2, 6, 1, 40.0))
sketch9.addConstraint(Sketcher.Constraint("DistanceY", 5, 1, 5, 2, 5.0))
sketch9.addConstraint(Sketcher.Constraint("DistanceY", 0, 2, -1, 1, 29.5))
sketch9.addConstraint(Sketcher.Constraint("DistanceX", 2, 1, 2, 2, 101.361781))
sketch9.addConstraint(Sketcher.Constraint("DistanceY", 1, 2, 1, 1, 25.58261))
sketch9.addConstraint(Sketcher.Constraint("DistanceX", 0, 2, 0, 1, 32.225177))
sketch9.setExpression("Constraints[17]", "Params.sketch9_width")
sketch9.setExpression("Constraints[18]", "Params.sketch9_height")
pocket7 = doc.addObject("PartDesign::Pocket", "Pocket006")
body.addObject(pocket7)
pocket7.Profile = sketch9
pocket7.setExpression("Length", "Params.pocket7_length")
doc.recompute()

fillet3 = doc.addObject("PartDesign::Fillet", "Fillet002")
body.addObject(fillet3)
fillet3.Base = (pocket7, edges_at(pocket7, [(40, -29.5, 5.5), (-40, -29.5, 5.5)]))
fillet3.setExpression("Radius", "Params.fillet3_radius")
doc.recompute()

fillet4 = doc.addObject("PartDesign::Fillet", "Fillet003")
body.addObject(fillet4)
fillet4.Base = (fillet3, edges_at(fillet3, [
    (-20, -27, 0),
    (-20, -29.5, 5.5),
    (0, -24.5, 0),
    (-20, -24.5, 5.5),
    (20, -27, 0),
    (20, -24.5, 5.5),
    (20, -29.5, 5.5),
    (20, -27, 11),
    (0, -24.5, 11),
    (-20, -27, 11),
]))
fillet4.setExpression("Radius", "Params.fillet4_radius")

doc.recompute()
